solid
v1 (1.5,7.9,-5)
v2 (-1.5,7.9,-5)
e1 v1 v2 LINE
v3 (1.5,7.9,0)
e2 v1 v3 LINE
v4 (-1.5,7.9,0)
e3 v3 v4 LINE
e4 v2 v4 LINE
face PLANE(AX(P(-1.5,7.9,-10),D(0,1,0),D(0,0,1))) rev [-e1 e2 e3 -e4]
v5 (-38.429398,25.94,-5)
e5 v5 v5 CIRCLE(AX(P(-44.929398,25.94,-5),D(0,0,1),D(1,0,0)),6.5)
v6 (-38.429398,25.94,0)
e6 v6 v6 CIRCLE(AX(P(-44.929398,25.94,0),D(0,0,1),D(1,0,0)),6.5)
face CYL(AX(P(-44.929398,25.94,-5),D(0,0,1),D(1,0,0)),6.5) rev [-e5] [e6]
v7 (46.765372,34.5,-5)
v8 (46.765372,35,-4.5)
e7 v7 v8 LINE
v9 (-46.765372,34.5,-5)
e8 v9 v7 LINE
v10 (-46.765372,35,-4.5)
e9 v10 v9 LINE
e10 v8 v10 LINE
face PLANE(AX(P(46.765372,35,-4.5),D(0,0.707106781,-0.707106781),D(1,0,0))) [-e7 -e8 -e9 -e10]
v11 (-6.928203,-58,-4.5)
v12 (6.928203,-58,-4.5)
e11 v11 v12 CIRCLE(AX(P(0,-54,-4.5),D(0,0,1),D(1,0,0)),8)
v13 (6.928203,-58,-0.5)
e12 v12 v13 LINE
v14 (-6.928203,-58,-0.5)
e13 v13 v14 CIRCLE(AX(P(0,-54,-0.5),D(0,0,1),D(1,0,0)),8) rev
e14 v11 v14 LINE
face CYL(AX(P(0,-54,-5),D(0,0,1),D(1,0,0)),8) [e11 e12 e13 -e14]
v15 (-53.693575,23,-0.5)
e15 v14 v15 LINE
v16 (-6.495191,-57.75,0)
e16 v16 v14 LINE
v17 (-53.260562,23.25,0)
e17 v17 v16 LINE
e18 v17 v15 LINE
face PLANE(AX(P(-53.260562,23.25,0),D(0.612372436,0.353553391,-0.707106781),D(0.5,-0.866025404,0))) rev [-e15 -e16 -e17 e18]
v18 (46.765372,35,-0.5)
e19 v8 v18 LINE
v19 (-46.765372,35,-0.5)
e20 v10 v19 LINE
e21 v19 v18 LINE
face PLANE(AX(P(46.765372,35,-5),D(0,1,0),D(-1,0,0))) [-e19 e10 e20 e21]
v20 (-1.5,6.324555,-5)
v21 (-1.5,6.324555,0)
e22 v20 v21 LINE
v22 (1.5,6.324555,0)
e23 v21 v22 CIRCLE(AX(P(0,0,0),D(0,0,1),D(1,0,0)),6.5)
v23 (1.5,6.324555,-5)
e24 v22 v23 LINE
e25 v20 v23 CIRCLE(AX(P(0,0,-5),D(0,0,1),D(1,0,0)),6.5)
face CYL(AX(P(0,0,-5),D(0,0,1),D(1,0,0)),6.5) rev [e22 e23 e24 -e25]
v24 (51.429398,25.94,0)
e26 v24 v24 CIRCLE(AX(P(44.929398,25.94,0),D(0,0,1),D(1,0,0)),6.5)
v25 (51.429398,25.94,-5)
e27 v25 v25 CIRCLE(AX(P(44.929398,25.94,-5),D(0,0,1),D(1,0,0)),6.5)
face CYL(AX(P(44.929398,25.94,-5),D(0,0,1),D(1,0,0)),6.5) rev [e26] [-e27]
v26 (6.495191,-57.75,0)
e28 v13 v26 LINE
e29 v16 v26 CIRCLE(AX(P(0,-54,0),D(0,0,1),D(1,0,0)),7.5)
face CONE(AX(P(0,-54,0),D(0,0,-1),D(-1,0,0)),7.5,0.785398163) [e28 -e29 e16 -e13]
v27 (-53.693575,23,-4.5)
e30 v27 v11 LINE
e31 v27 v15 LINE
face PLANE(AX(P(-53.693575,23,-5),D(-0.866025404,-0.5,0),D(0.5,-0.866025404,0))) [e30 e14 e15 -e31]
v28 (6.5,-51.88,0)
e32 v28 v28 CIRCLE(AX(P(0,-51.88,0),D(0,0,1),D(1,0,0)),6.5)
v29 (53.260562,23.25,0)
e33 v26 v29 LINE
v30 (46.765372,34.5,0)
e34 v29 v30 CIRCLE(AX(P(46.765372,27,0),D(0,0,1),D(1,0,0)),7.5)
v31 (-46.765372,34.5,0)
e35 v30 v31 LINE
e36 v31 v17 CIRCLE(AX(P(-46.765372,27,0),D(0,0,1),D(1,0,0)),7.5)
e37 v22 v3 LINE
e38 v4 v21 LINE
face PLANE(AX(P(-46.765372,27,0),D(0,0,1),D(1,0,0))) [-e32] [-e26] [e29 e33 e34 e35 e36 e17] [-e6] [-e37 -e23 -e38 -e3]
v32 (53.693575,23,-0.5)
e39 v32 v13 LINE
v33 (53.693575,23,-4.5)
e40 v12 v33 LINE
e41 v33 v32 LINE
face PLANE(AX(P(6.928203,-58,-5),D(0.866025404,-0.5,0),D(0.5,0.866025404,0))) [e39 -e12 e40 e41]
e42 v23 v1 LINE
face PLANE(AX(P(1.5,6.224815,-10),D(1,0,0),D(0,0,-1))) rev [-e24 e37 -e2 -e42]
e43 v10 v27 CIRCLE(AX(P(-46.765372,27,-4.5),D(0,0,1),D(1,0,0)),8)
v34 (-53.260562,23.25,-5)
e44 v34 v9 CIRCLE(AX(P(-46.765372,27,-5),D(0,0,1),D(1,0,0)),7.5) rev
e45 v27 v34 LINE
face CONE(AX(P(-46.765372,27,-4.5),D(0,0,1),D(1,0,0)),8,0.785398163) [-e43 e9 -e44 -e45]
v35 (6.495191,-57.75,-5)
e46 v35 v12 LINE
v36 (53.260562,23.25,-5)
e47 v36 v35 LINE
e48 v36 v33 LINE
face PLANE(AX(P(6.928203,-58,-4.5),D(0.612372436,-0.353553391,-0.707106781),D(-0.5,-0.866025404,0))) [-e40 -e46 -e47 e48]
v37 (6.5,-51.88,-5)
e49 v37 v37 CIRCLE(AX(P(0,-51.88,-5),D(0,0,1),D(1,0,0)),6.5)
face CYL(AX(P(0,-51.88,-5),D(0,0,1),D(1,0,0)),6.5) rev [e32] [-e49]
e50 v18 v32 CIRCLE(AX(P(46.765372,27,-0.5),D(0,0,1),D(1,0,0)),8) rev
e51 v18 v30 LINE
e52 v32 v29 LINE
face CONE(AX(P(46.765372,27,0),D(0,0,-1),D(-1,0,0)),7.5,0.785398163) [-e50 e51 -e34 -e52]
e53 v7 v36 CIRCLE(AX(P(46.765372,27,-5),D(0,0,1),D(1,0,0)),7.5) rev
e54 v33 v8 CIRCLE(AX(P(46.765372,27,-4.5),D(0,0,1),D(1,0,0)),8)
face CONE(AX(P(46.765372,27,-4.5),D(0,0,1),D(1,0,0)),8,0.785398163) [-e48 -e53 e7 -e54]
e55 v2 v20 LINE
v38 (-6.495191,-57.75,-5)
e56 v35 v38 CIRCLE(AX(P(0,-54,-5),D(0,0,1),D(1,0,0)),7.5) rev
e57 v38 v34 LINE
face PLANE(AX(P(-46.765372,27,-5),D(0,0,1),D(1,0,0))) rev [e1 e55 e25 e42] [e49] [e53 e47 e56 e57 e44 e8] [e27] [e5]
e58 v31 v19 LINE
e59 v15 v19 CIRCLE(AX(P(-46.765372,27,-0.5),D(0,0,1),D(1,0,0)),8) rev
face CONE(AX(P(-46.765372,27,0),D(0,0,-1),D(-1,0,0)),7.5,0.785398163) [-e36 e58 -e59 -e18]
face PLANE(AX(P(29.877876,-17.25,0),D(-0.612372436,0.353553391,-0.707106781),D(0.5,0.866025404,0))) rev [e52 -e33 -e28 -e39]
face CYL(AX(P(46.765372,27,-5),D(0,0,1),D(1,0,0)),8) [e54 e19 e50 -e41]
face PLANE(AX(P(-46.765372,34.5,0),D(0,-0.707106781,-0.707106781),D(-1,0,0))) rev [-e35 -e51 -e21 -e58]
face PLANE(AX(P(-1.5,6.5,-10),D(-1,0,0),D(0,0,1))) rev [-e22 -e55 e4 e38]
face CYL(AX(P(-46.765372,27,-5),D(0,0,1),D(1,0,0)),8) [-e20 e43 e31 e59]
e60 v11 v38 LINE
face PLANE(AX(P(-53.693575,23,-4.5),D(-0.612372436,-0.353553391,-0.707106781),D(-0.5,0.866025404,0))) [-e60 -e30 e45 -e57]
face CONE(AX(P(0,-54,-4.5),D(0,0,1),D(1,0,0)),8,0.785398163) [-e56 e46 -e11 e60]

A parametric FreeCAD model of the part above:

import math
import FreeCAD as App
import Part
import Sketcher
from FreeCAD import Vector
Q = App.Units.Quantity


def edges_at(feature, points):
    """Names of the edges that pass closest to the given points."""
    edges = feature.Shape.Edges
    near = lambda p: min(range(len(edges)), key=lambda i: edges[i].distToShape(Part.Vertex(*p))[0])
    return sorted({f"Edge{near(p) + 1}" for p in points})


def add_polygon(sketch, points):
    """Adds a closed chain of lines whose ends are joined by coincident constraints."""
    first, n = sketch.GeometryCount, len(points)
    for a, b in zip(points, points[1:] + points[:1]):
        sketch.addGeometry(Part.LineSegment(App.Vector(*a, 0), App.Vector(*b, 0)), False)
    for i in range(n):
        sketch.addConstraint(Sketcher.Constraint("Coincident", first + i, 2, first + (i + 1) % n, 1))

doc = App.newDocument("Part")
params = doc.addObject("Spreadsheet::Sheet", "Params")
for row, (alias, value) in enumerate([
    ("sketch1_diameter", "13 mm"),
    ("sketch1_radius", "8 mm"),
    ("pad1_length", "5 mm"),
    ("chamfer_size", "0.5 mm"),
    ("chamfer2_size", "0.5 mm"),
    ("sketch2_diameter", "13 mm"),
    ("sketch3_width", "3 mm"),
    ("pocket2_length", "10 mm"),
], start=1):
    params.set(f"A{row}", alias)
    params.set(f"B{row}", "=" + value)
    params.setAlias(f"B{row}", alias)

body = doc.addObject("PartDesign::Body", "Body")

sketch1 = body.newObject("Sketcher::SketchObject", "Sketch")
sketch1.AttachmentSupport = (doc.getObject("XY_Plane"), [""])
sketch1.MapMode = "FlatFace"
sketch1.addGeometry([
    Part.LineSegment(Vector(7, -58, 0), Vector(54, 23, 0)),
    Part.ArcOfCircle(Part.Circle(Vector(47, 27, 0), Vector(0, 0, 1), 8), math.radians(-30), math.radians(90)),
    Part.LineSegment(Vector(47, 35, 0), Vector(-47, 35, 0)),
    Part.ArcOfCircle(Part.Circle(Vector(-47, 27, 0), Vector(0, 0, 1), 8), math.radians(90), math.radians(210)),
    Part.LineSegment(Vector(-54, 23, 0), Vector(-7, -58, 0)),
    Part.ArcOfCircle(Part.Circle(Vector(0, -54, 0), Vector(0, 0, 1), 8), math.radians(-150), math.radians(-30)),
    Part.Circle(Vector(0, -52, 0), Vector(0, 0, 1), 6),
    Part.Circle(Vector(-45, 26, 0), Vector(0, 0, 1), 6),
    Part.Circle(Vector(45, 26, 0), Vector(0, 0, 1), 6),
], False)
sketch1.addConstraint([
    Sketcher.Constraint("Tangent", 0, 2, 1, 1),
    Sketcher.Constraint("Tangent", 1, 2, 2, 1),
    Sketcher.Constraint("Tangent", 2, 2, 3, 1),
    Sketcher.Constraint("Tangent", 3, 2, 4, 1),
    Sketcher.Constraint("Tangent", 4, 2, 5, 1),
    Sketcher.Constraint("Tangent", 5, 2, 0, 1),
    Sketcher.Constraint("Horizontal", 2),
    Sketcher.Constraint("Equal", 1, 3),
    Sketcher.Constraint("Equal", 3, 5),
    Sketcher.Constraint("Equal", 6, 7),
    Sketcher.Constraint("Equal", 7, 8),
    Sketcher.Constraint("Symmetric", 7, 3, 8, 3, -2),
    Sketcher.Constraint("Symmetric", 0, 2, 3, 2, -2),
    Sketcher.Constraint("PointOnObject", 6, 3, -2),
    Sketcher.Constraint("Diameter", 6, Q("13 mm")),
    Sketcher.Constraint("Radius", 1, Q("8 mm")),
    Sketcher.Constraint("Angle", 0, Q("60 deg")),
    Sketcher.Constraint("DistanceY", -1, 1, 1, 3, Q("27 mm")),
    Sketcher.Constraint("DistanceY", 5, 3, -1, 1, Q("54 mm")),
    Sketcher.Constraint("DistanceY", 6, 3, -1, 1, Q("51.88 mm")),
    Sketcher.Constraint("DistanceY", -1, 1, 7, 3, Q("25.94 mm")),
    Sketcher.Constraint("DistanceX", 7, 3, 1, 3, Q("91.69477 mm")),
])
sketch1.setExpression("Constraints[14]", "Params.sketch1_diameter")
sketch1.setExpression("Constraints[15]", "Params.sketch1_radius")
pad1 = body.newObject("PartDesign::Pad", "Pad")
pad1.Profile = sketch1
pad1.setExpression("Length", "Params.pad1_length")
pad1.Reversed = True
doc.recompute()

chamfer = body.newObject("PartDesign::Chamfer", "Chamfer")
chamfer.Base = (pad1, edges_at(pad1, [
    (0, 35, 0),
    (53.694, 31, 0),
    (30.311, -17.5, 0),
    (0, -62, 0),
    (-30.311, -17.5, 0),
    (-53.694, 31, 0),
]))
chamfer.setExpression("Size", "Params.chamfer_size")
doc.recompute()

chamfer2 = body.newObject("PartDesign::Chamfer", "Chamfer001")
chamfer2.Base = (chamfer, edges_at(chamfer, [
    (0, -62, -5),
    (30.311, -17.5, -5),
    (53.694, 31, -5),
    (0, 35, -5),
    (-53.694, 31, -5),
    (-30.311, -17.5, -5),
]))
chamfer2.setExpression("Size", "Params.chamfer2_size")

sketch2 = body.newObject("Sketcher::SketchObject", "Sketch001")
sketch2.AttachmentSupport = (doc.getObject("XY_Plane"), [""])
sketch2.MapMode = "FlatFace"
sketch2.addGeometry(Part.Circle(Vector(0, 0, 0), Vector(0, 0, 1), 6), False)
sketch2.addConstraint([
    Sketcher.Constraint("Coincident", 0, 3, -1, 1),
    Sketcher.Constraint("Diameter", 0, Q("13 mm")),
])
sketch2.setExpression("Constraints[1]", "Params.sketch2_diameter")
pocket1 = body.newObject("PartDesign::Pocket", "Pocket")
pocket1.Profile = sketch2
pocket1.Type = "ThroughAll"

sketch3 = body.newObject("Sketcher::SketchObject", "Sketch002")
sketch3.AttachmentSupport = (doc.getObject("XY_Plane"), [""])
sketch3.MapMode = "FlatFace"
add_polygon(sketch3, [(-1.5, 7.9), (-1.5, 6.2), (1.5, 6.2), (1.5, 7.9)])
sketch3.addConstraint([
    Sketcher.Constraint("Vertical", 0),
    Sketcher.Constraint("Horizontal", 1),
    Sketcher.Constraint("Vertical", 2),
    Sketcher.Constraint("Horizontal", 3),
    Sketcher.Constraint("DistanceX", 1, 1, 1, 2, Q("3 mm")),
    Sketcher.Constraint("DistanceX", 0, 2, -1, 1, Q("1.5 mm")),
    Sketcher.Constraint("DistanceY", -1, 1, 2, 2, Q("7.9 mm")),
    Sketcher.Constraint("DistanceY", 0, 2, 0, 1, Q("1.675185 mm")),
])
sketch3.setExpression("Constraints[8]", "Params.sketch3_width")
pocket2 = body.newObject("PartDesign::Pocket", "Pocket001")
pocket2.Profile = sketch3
pocket2.setExpression("Length", "Params.pocket2_length")

doc.recompute()
